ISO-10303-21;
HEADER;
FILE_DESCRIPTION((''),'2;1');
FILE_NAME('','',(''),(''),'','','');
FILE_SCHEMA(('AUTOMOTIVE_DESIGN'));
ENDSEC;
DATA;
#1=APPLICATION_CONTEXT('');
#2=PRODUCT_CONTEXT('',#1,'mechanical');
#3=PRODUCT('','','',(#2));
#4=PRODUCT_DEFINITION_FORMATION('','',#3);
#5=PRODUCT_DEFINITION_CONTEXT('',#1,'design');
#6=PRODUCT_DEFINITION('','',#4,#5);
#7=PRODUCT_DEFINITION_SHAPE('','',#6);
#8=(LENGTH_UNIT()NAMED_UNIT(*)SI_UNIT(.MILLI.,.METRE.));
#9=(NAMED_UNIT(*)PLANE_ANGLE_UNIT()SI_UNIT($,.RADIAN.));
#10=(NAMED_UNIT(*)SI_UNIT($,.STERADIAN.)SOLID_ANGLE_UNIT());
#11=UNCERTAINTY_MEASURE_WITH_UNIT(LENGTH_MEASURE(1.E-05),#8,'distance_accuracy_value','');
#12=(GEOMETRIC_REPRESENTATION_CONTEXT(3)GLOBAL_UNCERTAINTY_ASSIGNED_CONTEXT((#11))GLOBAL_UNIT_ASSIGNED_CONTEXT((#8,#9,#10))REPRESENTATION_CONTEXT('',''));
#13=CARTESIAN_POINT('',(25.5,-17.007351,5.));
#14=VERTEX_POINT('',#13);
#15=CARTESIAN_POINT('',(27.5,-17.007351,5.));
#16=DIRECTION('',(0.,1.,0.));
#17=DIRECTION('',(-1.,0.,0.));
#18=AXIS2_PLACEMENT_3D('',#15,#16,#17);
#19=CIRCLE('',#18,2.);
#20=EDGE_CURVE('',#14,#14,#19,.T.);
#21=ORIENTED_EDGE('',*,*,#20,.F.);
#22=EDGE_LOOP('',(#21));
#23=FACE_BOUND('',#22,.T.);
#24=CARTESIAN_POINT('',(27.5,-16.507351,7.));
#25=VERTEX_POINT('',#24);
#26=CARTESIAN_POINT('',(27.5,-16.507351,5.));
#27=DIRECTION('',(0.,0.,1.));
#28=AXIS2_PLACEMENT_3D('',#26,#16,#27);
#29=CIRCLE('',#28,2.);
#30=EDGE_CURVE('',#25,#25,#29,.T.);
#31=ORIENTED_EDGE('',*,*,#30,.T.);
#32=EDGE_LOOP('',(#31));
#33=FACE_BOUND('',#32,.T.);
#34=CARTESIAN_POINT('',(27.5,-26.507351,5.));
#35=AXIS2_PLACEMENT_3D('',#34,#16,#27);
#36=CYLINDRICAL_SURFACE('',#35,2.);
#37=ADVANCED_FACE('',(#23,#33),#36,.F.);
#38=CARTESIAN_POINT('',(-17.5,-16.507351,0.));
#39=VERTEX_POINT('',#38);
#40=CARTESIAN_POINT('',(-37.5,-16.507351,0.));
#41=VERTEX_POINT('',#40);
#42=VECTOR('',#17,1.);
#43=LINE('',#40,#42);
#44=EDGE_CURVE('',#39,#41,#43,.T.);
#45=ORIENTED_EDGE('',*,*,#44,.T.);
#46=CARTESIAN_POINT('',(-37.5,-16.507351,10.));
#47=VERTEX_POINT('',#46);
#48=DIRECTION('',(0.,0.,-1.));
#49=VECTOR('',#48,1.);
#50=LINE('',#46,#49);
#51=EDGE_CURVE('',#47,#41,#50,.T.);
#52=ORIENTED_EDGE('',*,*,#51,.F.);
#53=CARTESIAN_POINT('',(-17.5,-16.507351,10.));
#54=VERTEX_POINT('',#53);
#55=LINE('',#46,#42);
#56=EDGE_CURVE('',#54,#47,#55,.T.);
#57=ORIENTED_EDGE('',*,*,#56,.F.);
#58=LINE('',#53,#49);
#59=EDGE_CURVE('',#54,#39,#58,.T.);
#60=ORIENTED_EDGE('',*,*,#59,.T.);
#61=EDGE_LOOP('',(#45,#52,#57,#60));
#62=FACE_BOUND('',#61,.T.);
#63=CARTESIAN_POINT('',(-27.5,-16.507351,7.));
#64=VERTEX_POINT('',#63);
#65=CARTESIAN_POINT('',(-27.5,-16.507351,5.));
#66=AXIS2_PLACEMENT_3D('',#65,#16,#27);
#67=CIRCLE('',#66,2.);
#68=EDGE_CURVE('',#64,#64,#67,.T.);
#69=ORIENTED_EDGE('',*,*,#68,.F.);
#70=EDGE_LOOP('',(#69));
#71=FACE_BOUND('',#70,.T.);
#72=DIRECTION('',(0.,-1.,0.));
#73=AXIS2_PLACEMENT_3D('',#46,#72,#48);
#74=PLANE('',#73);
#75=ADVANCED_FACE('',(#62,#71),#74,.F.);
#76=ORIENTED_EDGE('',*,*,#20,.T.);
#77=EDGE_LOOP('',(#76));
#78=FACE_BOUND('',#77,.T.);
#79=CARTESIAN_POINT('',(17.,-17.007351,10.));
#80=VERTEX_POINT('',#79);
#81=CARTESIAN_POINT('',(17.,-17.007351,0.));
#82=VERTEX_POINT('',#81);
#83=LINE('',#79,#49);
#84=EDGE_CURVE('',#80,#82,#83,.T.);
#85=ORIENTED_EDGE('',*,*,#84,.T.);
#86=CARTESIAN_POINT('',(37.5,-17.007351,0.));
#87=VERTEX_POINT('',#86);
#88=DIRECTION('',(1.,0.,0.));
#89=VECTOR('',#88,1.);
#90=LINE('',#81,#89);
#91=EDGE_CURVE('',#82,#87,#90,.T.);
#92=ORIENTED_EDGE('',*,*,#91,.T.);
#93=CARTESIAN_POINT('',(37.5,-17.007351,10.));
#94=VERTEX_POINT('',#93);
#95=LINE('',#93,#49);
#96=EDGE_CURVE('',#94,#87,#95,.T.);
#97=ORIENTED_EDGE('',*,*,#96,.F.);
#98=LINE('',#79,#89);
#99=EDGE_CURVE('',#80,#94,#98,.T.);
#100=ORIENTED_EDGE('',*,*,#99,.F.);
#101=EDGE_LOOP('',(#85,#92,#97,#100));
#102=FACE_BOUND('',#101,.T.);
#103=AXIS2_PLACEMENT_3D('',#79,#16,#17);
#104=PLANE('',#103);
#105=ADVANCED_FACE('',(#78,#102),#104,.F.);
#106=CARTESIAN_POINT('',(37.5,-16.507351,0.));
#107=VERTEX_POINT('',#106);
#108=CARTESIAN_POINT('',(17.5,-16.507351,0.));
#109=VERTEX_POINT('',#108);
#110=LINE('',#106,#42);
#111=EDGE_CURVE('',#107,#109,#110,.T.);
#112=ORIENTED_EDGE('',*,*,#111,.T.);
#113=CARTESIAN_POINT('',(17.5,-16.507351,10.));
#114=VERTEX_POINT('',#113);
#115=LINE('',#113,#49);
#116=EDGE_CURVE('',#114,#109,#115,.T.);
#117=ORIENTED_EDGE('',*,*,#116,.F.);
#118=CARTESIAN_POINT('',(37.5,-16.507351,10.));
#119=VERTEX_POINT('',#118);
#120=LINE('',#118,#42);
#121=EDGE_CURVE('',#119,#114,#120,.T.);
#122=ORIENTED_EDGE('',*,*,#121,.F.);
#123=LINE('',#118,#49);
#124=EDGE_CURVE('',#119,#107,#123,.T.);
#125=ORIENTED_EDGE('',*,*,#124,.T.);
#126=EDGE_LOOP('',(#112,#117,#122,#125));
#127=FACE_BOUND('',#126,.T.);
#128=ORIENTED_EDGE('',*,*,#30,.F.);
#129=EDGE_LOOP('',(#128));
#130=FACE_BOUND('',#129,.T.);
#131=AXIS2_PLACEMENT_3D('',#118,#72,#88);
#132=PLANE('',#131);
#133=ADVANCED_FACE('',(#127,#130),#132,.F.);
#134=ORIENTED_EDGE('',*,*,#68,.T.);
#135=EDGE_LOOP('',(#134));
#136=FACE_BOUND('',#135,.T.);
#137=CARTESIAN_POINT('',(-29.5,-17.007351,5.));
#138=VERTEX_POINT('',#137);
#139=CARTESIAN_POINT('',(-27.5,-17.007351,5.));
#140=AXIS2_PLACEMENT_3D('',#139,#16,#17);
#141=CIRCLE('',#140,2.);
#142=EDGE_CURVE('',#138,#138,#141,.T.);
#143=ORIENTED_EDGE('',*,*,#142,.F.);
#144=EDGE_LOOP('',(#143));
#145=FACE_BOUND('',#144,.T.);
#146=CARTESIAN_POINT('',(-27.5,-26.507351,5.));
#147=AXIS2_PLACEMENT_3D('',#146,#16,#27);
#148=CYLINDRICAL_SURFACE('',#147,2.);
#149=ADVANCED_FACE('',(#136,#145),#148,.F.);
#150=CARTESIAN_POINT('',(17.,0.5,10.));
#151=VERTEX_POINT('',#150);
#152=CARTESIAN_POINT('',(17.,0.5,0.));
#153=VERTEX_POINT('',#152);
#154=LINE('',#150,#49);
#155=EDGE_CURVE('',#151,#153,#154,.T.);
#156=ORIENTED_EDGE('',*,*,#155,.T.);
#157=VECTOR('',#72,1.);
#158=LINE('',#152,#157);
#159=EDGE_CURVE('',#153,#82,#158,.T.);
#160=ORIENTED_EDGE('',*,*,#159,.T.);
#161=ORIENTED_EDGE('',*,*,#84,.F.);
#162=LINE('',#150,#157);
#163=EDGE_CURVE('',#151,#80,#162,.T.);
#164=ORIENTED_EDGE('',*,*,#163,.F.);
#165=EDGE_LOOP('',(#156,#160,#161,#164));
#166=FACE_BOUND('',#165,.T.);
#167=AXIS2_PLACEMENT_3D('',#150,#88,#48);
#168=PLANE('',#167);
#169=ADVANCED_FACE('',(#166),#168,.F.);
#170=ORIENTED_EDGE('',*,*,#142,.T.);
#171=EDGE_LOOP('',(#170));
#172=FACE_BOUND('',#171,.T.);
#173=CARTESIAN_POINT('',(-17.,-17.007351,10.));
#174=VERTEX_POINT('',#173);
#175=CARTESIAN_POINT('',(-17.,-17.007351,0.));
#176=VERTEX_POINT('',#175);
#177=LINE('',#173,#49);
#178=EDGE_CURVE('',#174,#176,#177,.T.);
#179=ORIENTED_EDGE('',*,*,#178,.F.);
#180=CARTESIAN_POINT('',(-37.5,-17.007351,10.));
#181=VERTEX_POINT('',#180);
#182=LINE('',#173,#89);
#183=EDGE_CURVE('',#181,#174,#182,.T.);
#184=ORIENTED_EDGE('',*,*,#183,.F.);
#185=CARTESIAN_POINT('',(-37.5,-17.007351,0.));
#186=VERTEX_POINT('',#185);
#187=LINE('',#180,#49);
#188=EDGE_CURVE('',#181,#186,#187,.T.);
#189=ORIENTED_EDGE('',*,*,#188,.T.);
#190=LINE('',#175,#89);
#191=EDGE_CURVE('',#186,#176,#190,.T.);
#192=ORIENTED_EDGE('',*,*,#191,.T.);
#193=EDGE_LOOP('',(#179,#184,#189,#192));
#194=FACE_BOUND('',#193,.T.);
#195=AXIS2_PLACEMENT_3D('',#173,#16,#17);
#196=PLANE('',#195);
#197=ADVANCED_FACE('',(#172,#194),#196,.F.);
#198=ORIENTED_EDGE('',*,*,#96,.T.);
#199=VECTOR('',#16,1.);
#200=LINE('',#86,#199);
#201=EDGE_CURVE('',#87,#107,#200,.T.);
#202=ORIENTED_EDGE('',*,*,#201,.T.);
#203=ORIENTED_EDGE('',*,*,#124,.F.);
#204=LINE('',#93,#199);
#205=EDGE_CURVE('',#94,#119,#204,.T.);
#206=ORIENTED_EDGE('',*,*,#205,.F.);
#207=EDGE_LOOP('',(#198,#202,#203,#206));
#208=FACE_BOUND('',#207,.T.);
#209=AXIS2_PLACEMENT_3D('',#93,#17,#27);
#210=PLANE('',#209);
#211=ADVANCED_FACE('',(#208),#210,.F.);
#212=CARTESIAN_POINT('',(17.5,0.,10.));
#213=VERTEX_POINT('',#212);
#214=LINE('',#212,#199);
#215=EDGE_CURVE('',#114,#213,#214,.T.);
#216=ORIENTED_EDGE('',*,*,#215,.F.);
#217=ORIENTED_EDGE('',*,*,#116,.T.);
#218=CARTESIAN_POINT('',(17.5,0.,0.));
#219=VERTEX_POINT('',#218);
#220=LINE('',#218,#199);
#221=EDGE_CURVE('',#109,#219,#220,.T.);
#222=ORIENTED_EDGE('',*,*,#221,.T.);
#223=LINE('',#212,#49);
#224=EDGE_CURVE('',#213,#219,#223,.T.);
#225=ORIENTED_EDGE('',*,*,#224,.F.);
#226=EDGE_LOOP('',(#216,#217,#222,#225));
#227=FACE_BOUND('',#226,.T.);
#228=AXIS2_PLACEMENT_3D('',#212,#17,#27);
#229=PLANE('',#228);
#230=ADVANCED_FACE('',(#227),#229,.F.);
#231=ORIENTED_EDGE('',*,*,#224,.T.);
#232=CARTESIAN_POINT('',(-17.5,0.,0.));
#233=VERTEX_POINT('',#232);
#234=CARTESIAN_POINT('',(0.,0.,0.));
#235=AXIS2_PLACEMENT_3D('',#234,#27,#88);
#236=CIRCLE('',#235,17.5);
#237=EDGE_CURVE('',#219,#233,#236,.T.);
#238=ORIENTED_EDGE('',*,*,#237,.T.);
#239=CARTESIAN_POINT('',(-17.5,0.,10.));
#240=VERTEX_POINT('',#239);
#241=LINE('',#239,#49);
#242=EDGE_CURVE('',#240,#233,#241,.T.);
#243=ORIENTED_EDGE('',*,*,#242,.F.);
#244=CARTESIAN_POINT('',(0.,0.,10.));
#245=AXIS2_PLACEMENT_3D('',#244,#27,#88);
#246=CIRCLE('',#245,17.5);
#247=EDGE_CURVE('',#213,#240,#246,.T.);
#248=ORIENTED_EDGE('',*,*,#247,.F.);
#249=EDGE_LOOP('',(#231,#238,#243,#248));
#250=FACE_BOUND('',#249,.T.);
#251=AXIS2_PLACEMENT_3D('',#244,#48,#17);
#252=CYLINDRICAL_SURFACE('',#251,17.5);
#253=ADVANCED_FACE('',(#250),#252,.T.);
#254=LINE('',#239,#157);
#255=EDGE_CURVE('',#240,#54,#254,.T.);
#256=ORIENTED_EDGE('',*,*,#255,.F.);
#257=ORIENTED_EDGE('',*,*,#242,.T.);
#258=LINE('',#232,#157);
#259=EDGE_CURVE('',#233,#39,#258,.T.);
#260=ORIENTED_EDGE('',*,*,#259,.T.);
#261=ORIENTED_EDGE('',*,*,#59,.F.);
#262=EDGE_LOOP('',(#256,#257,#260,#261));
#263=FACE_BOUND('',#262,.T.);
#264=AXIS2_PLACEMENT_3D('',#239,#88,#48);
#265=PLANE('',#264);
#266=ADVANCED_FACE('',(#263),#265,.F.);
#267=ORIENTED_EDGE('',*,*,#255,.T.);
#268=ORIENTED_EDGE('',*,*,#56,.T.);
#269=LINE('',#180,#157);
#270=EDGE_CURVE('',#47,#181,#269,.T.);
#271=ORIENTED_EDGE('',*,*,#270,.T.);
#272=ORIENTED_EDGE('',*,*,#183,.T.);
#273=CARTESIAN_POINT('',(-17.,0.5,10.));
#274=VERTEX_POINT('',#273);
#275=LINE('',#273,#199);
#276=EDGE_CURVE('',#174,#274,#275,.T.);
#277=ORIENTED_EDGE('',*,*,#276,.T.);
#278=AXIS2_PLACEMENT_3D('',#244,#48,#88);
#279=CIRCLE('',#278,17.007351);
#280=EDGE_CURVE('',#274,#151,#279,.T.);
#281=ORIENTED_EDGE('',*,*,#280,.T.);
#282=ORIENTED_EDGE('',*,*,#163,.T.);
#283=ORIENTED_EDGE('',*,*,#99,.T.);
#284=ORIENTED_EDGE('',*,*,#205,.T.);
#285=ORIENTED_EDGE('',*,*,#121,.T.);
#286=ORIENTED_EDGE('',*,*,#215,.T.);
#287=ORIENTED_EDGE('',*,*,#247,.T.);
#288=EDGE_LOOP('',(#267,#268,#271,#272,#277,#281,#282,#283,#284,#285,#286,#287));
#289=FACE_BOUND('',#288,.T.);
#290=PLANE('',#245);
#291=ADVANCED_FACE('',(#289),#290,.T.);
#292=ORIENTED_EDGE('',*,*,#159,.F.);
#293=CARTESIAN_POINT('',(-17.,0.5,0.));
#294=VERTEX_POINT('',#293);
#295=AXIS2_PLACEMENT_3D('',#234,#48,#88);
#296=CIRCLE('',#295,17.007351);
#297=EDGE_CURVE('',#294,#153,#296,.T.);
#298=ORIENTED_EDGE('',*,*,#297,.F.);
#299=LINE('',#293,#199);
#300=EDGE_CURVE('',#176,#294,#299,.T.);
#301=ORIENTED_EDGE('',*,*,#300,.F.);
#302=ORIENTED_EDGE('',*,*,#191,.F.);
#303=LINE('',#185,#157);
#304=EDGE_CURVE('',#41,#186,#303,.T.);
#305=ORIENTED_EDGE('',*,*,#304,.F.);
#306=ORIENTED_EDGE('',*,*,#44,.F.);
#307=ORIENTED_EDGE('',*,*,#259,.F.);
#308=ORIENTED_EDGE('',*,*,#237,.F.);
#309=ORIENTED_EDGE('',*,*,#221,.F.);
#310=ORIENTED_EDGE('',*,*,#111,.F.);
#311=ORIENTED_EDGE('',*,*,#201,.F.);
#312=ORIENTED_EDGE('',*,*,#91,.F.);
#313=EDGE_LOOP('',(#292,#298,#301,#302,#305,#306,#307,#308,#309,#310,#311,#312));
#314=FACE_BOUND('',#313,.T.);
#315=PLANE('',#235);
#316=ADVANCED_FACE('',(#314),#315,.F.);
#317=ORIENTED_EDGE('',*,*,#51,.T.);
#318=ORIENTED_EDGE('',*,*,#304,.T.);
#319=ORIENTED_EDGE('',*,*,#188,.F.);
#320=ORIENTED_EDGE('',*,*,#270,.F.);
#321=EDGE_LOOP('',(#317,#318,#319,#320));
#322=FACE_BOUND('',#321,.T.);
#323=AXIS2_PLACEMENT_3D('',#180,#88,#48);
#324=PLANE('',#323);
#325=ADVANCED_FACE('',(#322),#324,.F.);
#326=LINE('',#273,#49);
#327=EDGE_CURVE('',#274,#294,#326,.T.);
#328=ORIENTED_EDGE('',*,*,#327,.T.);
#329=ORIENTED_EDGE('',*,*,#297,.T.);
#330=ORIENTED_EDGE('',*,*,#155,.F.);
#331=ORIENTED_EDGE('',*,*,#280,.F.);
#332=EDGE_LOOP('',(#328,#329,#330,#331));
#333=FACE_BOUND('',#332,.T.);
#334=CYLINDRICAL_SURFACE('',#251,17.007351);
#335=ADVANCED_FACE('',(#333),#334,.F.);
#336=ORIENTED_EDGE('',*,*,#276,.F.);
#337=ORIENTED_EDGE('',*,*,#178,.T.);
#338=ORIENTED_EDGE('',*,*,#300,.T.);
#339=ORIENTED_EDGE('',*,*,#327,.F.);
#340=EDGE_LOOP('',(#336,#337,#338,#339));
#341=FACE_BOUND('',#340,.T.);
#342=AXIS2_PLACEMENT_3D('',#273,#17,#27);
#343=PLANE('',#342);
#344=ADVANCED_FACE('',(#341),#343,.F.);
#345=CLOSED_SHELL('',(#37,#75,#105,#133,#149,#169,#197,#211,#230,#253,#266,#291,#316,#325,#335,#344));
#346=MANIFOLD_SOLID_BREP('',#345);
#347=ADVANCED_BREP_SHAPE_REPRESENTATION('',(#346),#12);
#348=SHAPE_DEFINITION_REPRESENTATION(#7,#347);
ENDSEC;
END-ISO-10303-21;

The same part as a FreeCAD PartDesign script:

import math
import FreeCAD as App
import Part
import Sketcher

doc = App.newDocument("Part")
body = doc.addObject("PartDesign::Body", "Body")

# Sketch on XY plane
sketch1 = body.newObject("Sketcher::SketchObject", "Sketch")
sketch1.AttachmentSupport = (doc.getObject("XY_Plane"), [""])
sketch1.MapMode = "FlatFace"
sketch1.addGeometry([
    Part.LineSegment(App.Vector(-17.5, 0, 0), App.Vector(-17.5, -16.5, 0)),  # 0
    Part.LineSegment(App.Vector(-17.5, -16.5, 0), App.Vector(-37.5, -16.5, 0)),  # 1
    Part.LineSegment(App.Vector(-37.5, -16.5, 0), App.Vector(-37.5, -17, 0)),  # 2
    Part.LineSegment(App.Vector(-37.5, -17, 0), App.Vector(-17, -17, 0)),  # 3
    Part.LineSegment(App.Vector(-17, -17, 0), App.Vector(-17, 0.5, 0)),  # 4
    Part.ArcOfCircle(Part.Circle(App.Vector(0, 0, 0), App.Vector(0, 0, 1), 17), math.radians(2), math.radians(178)),  # 5
    Part.LineSegment(App.Vector(17, 0.5, 0), App.Vector(17, -17, 0)),  # 6
    Part.LineSegment(App.Vector(17, -17, 0), App.Vector(37.5, -17, 0)),  # 7
    Part.LineSegment(App.Vector(37.5, -17, 0), App.Vector(37.5, -16.5, 0)),  # 8
    Part.LineSegment(App.Vector(37.5, -16.5, 0), App.Vector(17.5, -16.5, 0)),  # 9
    Part.LineSegment(App.Vector(17.5, -16.5, 0), App.Vector(17.5, 0, 0)),  # 10
    Part.ArcOfCircle(Part.Circle(App.Vector(0, 0, 0), App.Vector(0, 0, 1), 17.5), math.radians(0), math.radians(180)),  # 11
], False)
sketch1.addConstraint([
    Sketcher.Constraint("Coincident", 0, 2, 1, 1),
    Sketcher.Constraint("Coincident", 1, 2, 2, 1),
    Sketcher.Constraint("Coincident", 2, 2, 3, 1),
    Sketcher.Constraint("Coincident", 3, 2, 4, 1),
    Sketcher.Constraint("Coincident", 4, 2, 5, 2),
    Sketcher.Constraint("Coincident", 5, 1, 6, 1),
    Sketcher.Constraint("Coincident", 6, 2, 7, 1),
    Sketcher.Constraint("Coincident", 7, 2, 8, 1),
    Sketcher.Constraint("Coincident", 8, 2, 9, 1),
    Sketcher.Constraint("Coincident", 9, 2, 10, 1),
    Sketcher.Constraint("Tangent", 10, 2, 11, 1),
    Sketcher.Constraint("Tangent", 11, 2, 0, 1),
    Sketcher.Constraint("Vertical", 0),
    Sketcher.Constraint("Horizontal", 1),
    Sketcher.Constraint("Vertical", 2),
    Sketcher.Constraint("Horizontal", 3),
    Sketcher.Constraint("Vertical", 4),
    Sketcher.Constraint("Vertical", 6),
    Sketcher.Constraint("Horizontal", 7),
    Sketcher.Constraint("Vertical", 8),
    Sketcher.Constraint("Horizontal", 9),
    Sketcher.Constraint("Vertical", 10),
    Sketcher.Constraint("Coincident", 5, 3, -1, 1),
    Sketcher.Constraint("Coincident", 11, 3, -1, 1),
    Sketcher.Constraint("Symmetric", 3, 2, 6, 2, -2),
    Sketcher.Constraint("Symmetric", 1, 2, 8, 2, -2),
    Sketcher.Constraint("Radius", 11, 17.5),
    Sketcher.Constraint("DistanceX", 1, 2, 1, 1, 20.0),
    Sketcher.Constraint("DistanceX", 3, 1, 3, 2, 20.5),
    Sketcher.Constraint("DistanceY", 2, 2, 2, 1, 0.5),
    Sketcher.Constraint("DistanceY", -1, 1, 4, 2, 0.5),
    Sketcher.Constraint("DistanceY", 0, 2, 0, 1, 16.507351),
])
pad1 = body.newObject("PartDesign::Pad", "Pad")
pad1.Profile = sketch1
pad1.Length = 10

# Sketch on XZ plane
sketch2 = body.newObject("Sketcher::SketchObject", "Sketch001")
sketch2.AttachmentSupport = (doc.getObject("XZ_Plane"), [""])
sketch2.MapMode = "FlatFace"
sketch2.AttachmentOffset = App.Placement(App.Vector(0, 0, 16.507351), App.Rotation())
sketch2.addGeometry([
    Part.Circle(App.Vector(-27.5, 5, 0), App.Vector(0, 0, 1), 2),
    Part.Circle(App.Vector(27.5, 5, 0), App.Vector(0, 0, 1), 2),
], False)
sketch2.addConstraint([
    Sketcher.Constraint("Equal", 0, 1),
    Sketcher.Constraint("Symmetric", 0, 3, 1, 3, -2),
    Sketcher.Constraint("Diameter", 0, 4.0),
    Sketcher.Constraint("DistanceY", -1, 1, 0, 3, 5.0),
    Sketcher.Constraint("DistanceX", 0, 3, 1, 3, 55.0),
])
pocket1 = body.newObject("PartDesign::Pocket", "Pocket")
pocket1.Profile = sketch2
pocket1.Length = 10
pocket1.Reversed = True

doc.recompute()
